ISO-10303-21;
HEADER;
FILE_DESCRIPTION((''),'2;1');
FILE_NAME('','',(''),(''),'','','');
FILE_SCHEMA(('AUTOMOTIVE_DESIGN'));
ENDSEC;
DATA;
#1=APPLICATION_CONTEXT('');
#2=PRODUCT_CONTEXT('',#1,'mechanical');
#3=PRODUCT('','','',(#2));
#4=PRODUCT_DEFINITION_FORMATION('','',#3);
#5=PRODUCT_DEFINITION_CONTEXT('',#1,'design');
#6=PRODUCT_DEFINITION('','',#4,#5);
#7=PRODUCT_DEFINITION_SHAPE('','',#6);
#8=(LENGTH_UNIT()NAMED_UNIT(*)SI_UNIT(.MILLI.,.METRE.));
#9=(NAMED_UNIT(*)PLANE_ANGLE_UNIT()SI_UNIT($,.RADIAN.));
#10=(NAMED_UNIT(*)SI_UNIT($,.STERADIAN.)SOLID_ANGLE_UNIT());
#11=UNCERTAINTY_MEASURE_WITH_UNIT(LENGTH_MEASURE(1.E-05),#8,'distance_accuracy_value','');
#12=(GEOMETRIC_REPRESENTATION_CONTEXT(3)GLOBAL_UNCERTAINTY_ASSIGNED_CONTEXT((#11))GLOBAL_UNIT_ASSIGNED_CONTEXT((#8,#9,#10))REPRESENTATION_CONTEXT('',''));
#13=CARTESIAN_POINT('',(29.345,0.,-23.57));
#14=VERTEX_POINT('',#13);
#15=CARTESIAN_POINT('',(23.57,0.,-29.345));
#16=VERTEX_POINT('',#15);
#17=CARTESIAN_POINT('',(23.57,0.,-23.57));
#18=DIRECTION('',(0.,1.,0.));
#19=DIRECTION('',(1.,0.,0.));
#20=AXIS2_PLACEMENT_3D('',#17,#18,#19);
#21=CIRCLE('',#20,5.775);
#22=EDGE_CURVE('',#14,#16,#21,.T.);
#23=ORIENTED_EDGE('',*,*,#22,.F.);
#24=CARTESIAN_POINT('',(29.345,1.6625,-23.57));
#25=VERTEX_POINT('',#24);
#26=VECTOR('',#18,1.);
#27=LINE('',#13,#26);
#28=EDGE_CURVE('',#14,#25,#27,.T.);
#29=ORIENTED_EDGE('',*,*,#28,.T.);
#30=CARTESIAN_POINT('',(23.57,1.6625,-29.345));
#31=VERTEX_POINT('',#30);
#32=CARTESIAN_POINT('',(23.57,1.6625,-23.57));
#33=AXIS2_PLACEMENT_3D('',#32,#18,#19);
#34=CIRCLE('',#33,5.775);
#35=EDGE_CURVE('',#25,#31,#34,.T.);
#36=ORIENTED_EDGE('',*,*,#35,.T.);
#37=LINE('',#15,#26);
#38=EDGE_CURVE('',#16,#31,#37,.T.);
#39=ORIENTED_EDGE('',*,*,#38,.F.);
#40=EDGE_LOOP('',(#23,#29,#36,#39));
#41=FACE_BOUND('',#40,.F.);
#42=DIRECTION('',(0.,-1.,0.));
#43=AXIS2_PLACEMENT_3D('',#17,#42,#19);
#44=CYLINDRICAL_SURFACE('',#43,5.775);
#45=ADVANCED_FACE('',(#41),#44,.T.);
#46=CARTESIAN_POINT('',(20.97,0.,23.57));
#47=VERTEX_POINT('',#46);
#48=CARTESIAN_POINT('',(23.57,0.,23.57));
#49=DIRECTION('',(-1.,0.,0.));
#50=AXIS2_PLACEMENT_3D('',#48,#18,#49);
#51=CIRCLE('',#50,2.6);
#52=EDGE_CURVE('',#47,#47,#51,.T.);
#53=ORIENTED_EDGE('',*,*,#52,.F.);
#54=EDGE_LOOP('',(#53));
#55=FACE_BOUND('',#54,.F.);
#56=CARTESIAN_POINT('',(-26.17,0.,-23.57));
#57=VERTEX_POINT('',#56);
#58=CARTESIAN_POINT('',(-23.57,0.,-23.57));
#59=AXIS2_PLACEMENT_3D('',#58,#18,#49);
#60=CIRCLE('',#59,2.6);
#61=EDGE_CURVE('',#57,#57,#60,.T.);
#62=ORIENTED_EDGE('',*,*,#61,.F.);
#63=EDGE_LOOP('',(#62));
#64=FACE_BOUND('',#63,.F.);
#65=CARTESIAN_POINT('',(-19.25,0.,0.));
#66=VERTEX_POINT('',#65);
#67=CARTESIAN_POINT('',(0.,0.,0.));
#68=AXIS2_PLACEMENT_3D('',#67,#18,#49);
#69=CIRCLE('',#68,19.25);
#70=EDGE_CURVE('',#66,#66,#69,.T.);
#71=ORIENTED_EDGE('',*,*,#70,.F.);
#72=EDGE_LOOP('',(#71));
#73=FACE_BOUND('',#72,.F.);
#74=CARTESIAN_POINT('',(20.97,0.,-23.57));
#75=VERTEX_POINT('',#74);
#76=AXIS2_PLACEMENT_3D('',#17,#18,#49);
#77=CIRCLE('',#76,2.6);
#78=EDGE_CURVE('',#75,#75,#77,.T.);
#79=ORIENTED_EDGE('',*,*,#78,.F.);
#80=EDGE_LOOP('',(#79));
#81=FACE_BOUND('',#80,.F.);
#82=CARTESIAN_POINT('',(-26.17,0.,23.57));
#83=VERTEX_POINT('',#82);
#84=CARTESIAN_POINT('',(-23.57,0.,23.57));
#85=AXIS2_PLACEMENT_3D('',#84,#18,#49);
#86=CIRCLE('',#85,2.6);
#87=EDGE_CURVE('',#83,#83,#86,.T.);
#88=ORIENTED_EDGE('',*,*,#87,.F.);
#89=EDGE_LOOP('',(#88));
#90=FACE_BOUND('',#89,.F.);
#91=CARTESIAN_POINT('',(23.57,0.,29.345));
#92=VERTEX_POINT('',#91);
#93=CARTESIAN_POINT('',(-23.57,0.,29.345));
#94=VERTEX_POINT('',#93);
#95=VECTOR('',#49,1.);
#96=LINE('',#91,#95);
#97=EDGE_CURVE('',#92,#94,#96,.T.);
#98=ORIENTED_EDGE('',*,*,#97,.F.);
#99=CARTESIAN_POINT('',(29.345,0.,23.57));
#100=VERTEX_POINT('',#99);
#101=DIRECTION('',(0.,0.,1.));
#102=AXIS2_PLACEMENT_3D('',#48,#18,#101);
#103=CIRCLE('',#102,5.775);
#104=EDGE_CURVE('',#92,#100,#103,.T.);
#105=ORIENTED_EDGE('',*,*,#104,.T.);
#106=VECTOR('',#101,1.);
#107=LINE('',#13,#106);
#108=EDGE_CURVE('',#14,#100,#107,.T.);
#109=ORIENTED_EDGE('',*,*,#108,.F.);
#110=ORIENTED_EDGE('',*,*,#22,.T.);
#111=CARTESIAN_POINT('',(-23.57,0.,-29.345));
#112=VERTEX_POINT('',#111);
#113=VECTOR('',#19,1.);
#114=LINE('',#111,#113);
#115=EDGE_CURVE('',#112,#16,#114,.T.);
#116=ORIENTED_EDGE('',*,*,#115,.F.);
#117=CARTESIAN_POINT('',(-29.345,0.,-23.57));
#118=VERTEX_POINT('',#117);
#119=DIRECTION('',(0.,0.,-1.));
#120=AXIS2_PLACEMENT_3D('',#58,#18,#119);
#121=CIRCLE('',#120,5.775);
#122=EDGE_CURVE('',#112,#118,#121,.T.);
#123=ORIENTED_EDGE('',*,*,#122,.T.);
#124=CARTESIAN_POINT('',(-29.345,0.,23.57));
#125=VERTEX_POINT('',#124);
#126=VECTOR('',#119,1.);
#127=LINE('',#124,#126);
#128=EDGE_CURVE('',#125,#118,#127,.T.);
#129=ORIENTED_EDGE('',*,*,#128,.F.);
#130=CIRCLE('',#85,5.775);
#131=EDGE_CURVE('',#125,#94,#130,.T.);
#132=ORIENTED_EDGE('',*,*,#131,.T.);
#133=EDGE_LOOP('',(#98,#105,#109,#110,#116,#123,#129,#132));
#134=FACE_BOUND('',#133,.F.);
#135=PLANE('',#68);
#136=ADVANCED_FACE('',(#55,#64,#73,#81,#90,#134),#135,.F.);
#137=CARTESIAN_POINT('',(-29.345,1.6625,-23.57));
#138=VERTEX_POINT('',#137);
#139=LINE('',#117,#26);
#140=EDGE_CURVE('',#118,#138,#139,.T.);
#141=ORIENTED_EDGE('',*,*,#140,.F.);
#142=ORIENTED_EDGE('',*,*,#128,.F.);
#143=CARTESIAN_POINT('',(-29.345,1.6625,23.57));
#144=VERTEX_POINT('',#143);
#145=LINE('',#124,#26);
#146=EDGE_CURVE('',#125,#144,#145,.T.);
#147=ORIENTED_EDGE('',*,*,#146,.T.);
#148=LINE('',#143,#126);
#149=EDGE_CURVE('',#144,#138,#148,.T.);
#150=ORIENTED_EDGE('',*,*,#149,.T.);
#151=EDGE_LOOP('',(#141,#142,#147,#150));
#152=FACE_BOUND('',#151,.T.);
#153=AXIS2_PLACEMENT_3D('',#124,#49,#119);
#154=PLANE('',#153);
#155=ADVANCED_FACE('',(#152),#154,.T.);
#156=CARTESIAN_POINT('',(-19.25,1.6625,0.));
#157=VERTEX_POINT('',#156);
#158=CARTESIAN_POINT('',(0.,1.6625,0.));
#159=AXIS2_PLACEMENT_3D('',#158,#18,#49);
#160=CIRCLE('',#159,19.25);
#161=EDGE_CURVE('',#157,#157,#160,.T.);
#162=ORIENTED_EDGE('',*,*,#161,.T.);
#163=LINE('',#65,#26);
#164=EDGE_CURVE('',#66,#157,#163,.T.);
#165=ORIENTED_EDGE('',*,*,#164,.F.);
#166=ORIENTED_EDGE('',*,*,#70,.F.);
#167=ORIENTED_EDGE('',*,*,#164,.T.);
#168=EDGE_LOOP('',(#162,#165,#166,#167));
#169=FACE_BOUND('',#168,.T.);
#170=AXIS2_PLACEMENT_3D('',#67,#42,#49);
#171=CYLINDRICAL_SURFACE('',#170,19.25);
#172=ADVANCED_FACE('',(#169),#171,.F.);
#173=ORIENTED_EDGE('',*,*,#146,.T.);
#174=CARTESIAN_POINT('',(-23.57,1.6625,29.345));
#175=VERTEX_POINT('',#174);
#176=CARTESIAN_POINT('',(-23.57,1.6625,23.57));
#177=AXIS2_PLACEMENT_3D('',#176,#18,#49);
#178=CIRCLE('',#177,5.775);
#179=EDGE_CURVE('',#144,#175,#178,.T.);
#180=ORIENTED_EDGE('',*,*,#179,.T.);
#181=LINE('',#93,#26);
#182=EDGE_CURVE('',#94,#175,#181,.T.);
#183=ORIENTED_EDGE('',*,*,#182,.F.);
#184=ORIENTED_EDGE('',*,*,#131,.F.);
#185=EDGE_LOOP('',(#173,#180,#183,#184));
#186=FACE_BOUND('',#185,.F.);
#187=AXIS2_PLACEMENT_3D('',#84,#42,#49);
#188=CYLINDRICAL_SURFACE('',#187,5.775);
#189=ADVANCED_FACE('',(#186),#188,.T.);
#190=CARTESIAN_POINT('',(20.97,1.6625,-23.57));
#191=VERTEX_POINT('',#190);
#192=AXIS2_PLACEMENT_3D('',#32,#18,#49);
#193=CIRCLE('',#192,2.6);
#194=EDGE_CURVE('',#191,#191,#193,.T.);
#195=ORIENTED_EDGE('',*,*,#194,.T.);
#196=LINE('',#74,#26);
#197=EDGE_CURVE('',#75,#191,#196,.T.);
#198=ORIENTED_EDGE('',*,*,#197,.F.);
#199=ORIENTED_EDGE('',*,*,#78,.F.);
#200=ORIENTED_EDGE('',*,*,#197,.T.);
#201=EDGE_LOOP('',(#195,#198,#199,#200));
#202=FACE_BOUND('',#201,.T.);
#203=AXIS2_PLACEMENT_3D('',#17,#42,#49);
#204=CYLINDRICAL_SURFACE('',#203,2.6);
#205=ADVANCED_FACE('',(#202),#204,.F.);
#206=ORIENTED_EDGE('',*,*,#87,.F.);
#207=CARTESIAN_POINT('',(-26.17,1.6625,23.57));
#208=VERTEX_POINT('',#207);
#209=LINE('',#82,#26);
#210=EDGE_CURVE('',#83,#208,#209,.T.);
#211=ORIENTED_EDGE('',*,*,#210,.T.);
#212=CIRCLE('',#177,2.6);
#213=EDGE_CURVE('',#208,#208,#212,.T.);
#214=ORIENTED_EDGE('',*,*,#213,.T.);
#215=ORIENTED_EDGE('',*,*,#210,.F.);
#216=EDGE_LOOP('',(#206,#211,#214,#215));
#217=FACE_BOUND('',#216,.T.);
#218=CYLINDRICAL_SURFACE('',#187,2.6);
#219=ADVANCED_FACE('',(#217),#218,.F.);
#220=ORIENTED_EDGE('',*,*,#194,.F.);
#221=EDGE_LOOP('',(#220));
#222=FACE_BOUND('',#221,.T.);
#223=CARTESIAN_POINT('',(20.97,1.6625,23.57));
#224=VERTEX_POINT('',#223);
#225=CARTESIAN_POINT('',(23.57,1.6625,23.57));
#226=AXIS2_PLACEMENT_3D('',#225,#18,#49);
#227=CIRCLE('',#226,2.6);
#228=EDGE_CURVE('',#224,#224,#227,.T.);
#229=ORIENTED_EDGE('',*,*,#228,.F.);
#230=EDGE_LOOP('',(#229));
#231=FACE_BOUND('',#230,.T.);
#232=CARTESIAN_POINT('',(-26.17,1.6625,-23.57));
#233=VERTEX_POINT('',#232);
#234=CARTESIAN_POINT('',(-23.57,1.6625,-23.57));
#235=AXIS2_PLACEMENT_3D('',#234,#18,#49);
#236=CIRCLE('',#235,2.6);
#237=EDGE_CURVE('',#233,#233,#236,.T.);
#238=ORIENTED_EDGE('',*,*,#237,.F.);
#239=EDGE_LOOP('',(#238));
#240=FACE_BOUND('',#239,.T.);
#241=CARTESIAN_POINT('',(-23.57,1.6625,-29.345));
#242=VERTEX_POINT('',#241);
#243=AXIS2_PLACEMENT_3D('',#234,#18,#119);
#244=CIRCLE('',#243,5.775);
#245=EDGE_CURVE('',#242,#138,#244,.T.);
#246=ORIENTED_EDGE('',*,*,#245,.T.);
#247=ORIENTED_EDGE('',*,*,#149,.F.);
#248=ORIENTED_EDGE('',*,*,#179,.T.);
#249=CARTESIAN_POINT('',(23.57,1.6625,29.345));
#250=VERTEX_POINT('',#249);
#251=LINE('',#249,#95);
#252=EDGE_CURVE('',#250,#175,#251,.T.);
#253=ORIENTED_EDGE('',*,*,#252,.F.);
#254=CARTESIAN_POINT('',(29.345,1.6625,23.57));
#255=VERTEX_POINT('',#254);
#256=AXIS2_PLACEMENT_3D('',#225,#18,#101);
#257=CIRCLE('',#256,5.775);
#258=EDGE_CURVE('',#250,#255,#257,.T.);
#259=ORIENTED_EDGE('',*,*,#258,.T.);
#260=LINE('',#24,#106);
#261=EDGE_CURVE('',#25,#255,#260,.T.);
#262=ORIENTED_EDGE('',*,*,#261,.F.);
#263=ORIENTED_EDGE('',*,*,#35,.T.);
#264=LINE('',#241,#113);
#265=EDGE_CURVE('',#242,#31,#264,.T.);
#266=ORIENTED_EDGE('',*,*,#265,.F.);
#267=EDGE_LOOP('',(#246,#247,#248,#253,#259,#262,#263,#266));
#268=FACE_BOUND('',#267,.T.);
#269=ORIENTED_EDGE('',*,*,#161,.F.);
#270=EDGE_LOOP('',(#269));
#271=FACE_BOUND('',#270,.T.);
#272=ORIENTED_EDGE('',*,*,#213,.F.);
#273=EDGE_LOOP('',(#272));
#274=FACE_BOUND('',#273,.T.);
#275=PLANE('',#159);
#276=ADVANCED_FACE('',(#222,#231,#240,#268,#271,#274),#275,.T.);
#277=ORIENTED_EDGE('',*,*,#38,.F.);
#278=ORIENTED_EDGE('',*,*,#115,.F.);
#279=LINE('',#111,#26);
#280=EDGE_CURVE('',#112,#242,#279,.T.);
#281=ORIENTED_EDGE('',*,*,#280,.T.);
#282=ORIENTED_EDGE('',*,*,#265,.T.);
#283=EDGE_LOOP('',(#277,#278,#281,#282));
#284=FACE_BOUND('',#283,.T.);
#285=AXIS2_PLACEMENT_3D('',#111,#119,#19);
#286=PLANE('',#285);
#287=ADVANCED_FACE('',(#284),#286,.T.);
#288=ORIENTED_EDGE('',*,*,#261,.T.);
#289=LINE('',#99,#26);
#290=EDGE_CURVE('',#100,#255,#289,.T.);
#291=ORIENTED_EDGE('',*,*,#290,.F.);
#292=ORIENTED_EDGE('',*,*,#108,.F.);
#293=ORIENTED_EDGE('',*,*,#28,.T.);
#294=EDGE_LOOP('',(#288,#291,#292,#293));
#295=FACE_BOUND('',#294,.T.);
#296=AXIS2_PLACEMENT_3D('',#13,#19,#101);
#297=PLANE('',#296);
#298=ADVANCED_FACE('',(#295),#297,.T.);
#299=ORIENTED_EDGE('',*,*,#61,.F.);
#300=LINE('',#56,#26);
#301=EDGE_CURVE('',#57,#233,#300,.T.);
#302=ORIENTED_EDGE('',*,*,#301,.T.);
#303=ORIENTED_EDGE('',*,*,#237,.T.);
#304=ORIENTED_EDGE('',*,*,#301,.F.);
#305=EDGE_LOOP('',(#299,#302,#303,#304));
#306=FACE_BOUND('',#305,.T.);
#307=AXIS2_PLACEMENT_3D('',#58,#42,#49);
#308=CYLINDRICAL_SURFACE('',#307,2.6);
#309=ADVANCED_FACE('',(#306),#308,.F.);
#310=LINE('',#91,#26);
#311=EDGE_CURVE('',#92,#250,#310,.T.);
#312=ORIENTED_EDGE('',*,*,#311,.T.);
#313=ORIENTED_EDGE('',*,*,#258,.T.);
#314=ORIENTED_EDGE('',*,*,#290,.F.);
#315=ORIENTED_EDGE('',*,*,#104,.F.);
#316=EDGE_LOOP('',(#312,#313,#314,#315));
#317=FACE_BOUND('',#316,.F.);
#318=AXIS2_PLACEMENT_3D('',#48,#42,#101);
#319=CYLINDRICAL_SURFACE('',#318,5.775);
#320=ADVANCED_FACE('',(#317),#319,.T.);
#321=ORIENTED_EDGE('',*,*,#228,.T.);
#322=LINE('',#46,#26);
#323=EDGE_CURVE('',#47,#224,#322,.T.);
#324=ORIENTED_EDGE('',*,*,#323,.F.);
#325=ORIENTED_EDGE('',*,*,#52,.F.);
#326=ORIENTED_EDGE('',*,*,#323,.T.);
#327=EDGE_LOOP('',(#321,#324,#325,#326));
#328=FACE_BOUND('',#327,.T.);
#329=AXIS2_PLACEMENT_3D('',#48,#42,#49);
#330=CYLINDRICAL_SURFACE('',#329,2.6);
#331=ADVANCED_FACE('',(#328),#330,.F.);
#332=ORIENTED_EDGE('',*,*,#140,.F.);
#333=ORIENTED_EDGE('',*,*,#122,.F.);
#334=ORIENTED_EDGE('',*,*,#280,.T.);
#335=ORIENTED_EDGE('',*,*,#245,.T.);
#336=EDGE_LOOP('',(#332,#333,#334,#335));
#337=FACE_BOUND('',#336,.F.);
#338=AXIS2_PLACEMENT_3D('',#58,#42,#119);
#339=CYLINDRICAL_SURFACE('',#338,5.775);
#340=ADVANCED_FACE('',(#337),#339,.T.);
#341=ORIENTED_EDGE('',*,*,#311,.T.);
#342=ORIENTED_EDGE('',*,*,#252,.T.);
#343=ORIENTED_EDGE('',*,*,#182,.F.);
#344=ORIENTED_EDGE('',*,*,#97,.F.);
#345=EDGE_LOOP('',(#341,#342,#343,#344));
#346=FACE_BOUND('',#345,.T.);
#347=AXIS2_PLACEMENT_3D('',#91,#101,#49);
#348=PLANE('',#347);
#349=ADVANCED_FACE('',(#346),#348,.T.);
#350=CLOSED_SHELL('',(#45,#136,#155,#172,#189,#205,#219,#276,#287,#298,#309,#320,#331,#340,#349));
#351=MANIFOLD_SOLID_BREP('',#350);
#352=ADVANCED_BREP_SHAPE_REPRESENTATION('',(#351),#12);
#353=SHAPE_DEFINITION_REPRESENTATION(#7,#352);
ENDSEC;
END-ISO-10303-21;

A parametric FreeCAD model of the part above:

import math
import FreeCAD as App
import Part
import Sketcher
Q = App.Units.Quantity

doc = App.newDocument("Part")
body = doc.addObject("PartDesign::Body", "Body")

sketch1 = body.newObject("Sketcher::SketchObject", "Sketch")
sketch1.AttachmentSupport = (doc.getObject("XZ_Plane"), [""])
sketch1.MapMode = "FlatFace"
sketch1.addGeometry([
    Part.LineSegment(App.Vector(-29.3, -23.6, 0), App.Vector(-29.3, 23.6, 0)),
    Part.ArcOfCircle(Part.Circle(App.Vector(-23.6, 23.6, 0), App.Vector(0, 0, 1), 5.8), math.radians(90), math.radians(180)),
    Part.LineSegment(App.Vector(-23.6, 29.3, 0), App.Vector(23.6, 29.3, 0)),
    Part.ArcOfCircle(Part.Circle(App.Vector(23.6, 23.6, 0), App.Vector(0, 0, 1), 5.8), math.radians(0), math.radians(90)),
    Part.LineSegment(App.Vector(29.3, 23.6, 0), App.Vector(29.3, -23.6, 0)),
    Part.ArcOfCircle(Part.Circle(App.Vector(23.6, -23.6, 0), App.Vector(0, 0, 1), 5.8), math.radians(-90), math.radians(0)),
    Part.LineSegment(App.Vector(23.6, -29.3, 0), App.Vector(-23.6, -29.3, 0)),
    Part.ArcOfCircle(Part.Circle(App.Vector(-23.6, -23.6, 0), App.Vector(0, 0, 1), 5.8), math.radians(180), math.radians(270)),
    Part.Circle(App.Vector(23.6, -23.6, 0), App.Vector(0, 0, 1), 2.6),
    Part.Circle(App.Vector(-23.6, -23.6, 0), App.Vector(0, 0, 1), 2.6),
    Part.Circle(App.Vector(23.6, 23.6, 0), App.Vector(0, 0, 1), 2.6),
    Part.Circle(App.Vector(0, 0, 0), App.Vector(0, 0, 1), 19.2),
    Part.Circle(App.Vector(-23.6, 23.6, 0), App.Vector(0, 0, 1), 2.6),
], False)
sketch1.addConstraint([
    Sketcher.Constraint("Tangent", 0, 2, 1, 2),
    Sketcher.Constraint("Tangent", 1, 1, 2, 1),
    Sketcher.Constraint("Tangent", 2, 2, 3, 2),
    Sketcher.Constraint("Tangent", 3, 1, 4, 1),
    Sketcher.Constraint("Tangent", 4, 2, 5, 2),
    Sketcher.Constraint("Tangent", 5, 1, 6, 1),
    Sketcher.Constraint("Tangent", 6, 2, 7, 2),
    Sketcher.Constraint("Tangent", 7, 1, 0, 1),
    Sketcher.Constraint("Vertical", 0),
    Sketcher.Constraint("Horizontal", 2),
    Sketcher.Constraint("Vertical", 4),
    Sketcher.Constraint("Horizontal", 6),
    Sketcher.Constraint("Coincident", 11, 3, -1, 1),
    Sketcher.Constraint("Coincident", 8, 3, 5, 3),
    Sketcher.Constraint("Coincident", 9, 3, 7, 3),
    Sketcher.Constraint("Coincident", 10, 3, 3, 3),
    Sketcher.Constraint("Coincident", 12, 3, 1, 3),
    Sketcher.Constraint("Equal", 1, 3),
    Sketcher.Constraint("Equal", 3, 5),
    Sketcher.Constraint("Equal", 5, 7),
    Sketcher.Constraint("Equal", 8, 9),
    Sketcher.Constraint("Equal", 9, 10),
    Sketcher.Constraint("Equal", 10, 12),
    Sketcher.Constraint("Symmetric", 1, 3, 5, 3, -1, 1),
    Sketcher.Constraint("Equal", 6, 0),
    Sketcher.Constraint("Diameter", 8, Q("5.2 mm")),
    Sketcher.Constraint("Diameter", 11, Q("38.5 mm")),
    Sketcher.Constraint("DistanceX", 1, 3, -1, 1, Q("23.57 mm")),
    Sketcher.Constraint("Radius", 1, Q("5.775 mm")),
])
pad1 = body.newObject("PartDesign::Pad", "Pad")
pad1.Profile = sketch1
pad1.Length = 1.6625
pad1.Reversed = True

doc.recompute()
